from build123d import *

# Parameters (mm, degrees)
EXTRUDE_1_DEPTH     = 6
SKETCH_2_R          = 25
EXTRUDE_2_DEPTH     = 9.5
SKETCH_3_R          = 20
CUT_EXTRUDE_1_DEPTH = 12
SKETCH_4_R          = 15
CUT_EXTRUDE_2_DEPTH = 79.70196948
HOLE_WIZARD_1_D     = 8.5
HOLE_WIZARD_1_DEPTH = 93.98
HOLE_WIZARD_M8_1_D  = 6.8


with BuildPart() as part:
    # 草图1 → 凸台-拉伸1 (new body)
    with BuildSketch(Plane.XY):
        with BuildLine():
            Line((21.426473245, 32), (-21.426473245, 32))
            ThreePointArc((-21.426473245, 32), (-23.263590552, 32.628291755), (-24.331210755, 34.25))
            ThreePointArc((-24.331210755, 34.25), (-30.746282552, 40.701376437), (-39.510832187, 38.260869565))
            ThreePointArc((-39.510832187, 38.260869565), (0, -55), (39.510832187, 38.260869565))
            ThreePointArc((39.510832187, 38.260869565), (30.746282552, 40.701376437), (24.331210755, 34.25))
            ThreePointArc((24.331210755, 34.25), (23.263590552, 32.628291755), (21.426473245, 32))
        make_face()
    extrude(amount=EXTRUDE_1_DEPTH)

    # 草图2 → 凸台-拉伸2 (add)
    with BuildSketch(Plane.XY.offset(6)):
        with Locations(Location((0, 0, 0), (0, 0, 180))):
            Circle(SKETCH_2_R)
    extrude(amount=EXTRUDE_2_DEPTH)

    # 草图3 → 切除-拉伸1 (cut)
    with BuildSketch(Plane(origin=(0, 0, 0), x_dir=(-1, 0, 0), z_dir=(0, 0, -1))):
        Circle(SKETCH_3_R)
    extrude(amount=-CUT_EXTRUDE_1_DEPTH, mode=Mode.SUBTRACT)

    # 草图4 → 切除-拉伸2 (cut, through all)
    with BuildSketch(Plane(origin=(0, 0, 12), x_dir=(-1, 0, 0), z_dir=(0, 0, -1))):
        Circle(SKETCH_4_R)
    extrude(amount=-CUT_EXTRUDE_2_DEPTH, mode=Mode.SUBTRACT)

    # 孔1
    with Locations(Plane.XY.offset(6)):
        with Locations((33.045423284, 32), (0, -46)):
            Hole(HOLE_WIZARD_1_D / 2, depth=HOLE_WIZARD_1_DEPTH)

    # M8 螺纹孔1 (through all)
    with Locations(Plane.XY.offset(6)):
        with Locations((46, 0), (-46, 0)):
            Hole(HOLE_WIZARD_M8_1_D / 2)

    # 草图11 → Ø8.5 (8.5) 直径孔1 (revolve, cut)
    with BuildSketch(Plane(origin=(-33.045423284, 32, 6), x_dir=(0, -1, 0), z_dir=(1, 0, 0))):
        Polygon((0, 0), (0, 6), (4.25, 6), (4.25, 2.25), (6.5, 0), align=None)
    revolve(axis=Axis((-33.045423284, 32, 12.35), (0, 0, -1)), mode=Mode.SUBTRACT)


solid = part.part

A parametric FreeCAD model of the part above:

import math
import FreeCAD as App
import Part
import Sketcher
Q = App.Units.Quantity


def add_polygon(sketch, points):
    """Adds a closed chain of lines whose ends are joined by coincident constraints."""
    first, n = sketch.GeometryCount, len(points)
    for a, b in zip(points, points[1:] + points[:1]):
        sketch.addGeometry(Part.LineSegment(App.Vector(*a, 0), App.Vector(*b, 0)), False)
    for i in range(n):
        sketch.addConstraint(Sketcher.Constraint("Coincident", first + i, 2, first + (i + 1) % n, 1))

doc = App.newDocument("Part")
body = doc.addObject("PartDesign::Body", "Body")

sketch1 = body.newObject("Sketcher::SketchObject", "Sketch")
sketch1.AttachmentSupport = (doc.getObject("XY_Plane"), [""])
sketch1.MapMode = "FlatFace"
sketch1.addGeometry([
    Part.LineSegment(App.Vector(21.4, 32, 0), App.Vector(-21.4, 32, 0)),
    Part.ArcOfCircle(Part.Circle(App.Vector(-21.4, 35, 0), App.Vector(0, 0, 1), 3), math.radians(-166), math.radians(-90)),
    Part.ArcOfCircle(Part.Circle(App.Vector(-33, 32, 0), App.Vector(0, 0, 1), 9), math.radians(14), math.radians(136)),
    Part.ArcOfCircle(Part.Circle(App.Vector(0, 0, 0), App.Vector(0, 0, 1), 55), math.radians(136), math.radians(404)),
    Part.ArcOfCircle(Part.Circle(App.Vector(33, 32, 0), App.Vector(0, 0, 1), 9), math.radians(44), math.radians(166)),
    Part.ArcOfCircle(Part.Circle(App.Vector(21.4, 35, 0), App.Vector(0, 0, 1), 3), math.radians(-90), math.radians(-14)),
], False)
sketch1.addConstraint([
    Sketcher.Constraint("Tangent", 0, 2, 1, 2),
    Sketcher.Constraint("Tangent", 1, 1, 2, 1),
    Sketcher.Constraint("Tangent", 2, 2, 3, 1),
    Sketcher.Constraint("Tangent", 3, 2, 4, 1),
    Sketcher.Constraint("Tangent", 4, 2, 5, 2),
    Sketcher.Constraint("Tangent", 5, 1, 0, 1),
    Sketcher.Constraint("Horizontal", 0),
    Sketcher.Constraint("Coincident", 3, 3, -1, 1),
    Sketcher.Constraint("Equal", 2, 4),
    Sketcher.Constraint("Equal", 1, 5),
    Sketcher.Constraint("Horizontal", 2, 3, 4, 3),
    Sketcher.Constraint("Horizontal", 4, 3, 0, 2),
    Sketcher.Constraint("Radius", 1, 3.0),
    Sketcher.Constraint("Radius", 2, 9.0),
    Sketcher.Constraint("Radius", 3, 55.0),
    Sketcher.Constraint("DistanceY", -1, 1, 1, 3, 35.0),
])
pad1 = body.newObject("PartDesign::Pad", "Pad")
pad1.Profile = sketch1
pad1.Length = 6

sketch2 = body.newObject("Sketcher::SketchObject", "Sketch001")
sketch2.AttachmentSupport = (doc.getObject("XY_Plane"), [""])
sketch2.MapMode = "FlatFace"
sketch2.AttachmentOffset = App.Placement(App.Vector(0, 0, 6), App.Rotation())
sketch2.addGeometry(Part.Circle(App.Vector(0, 0, 0), App.Vector(0, 0, 1), 25), False)
sketch2.addConstraint([
    Sketcher.Constraint("Coincident", 0, 3, -1, 1),
    Sketcher.Constraint("Diameter", 0, 50.0),
])
pad2 = body.newObject("PartDesign::Pad", "Pad001")
pad2.Profile = sketch2
pad2.Length = 9.5

sketch3 = body.newObject("Sketcher::SketchObject", "Sketch002")
sketch3.AttachmentSupport = (doc.getObject("XY_Plane"), [""])
sketch3.MapMode = "FlatFace"
sketch3.addGeometry(Part.Circle(App.Vector(0, 0, 0), App.Vector(0, 0, 1), 20), False)
sketch3.addConstraint([
    Sketcher.Constraint("Coincident", 0, 3, -1, 1),
    Sketcher.Constraint("Diameter", 0, 40.0),
])
pocket1 = body.newObject("PartDesign::Pocket", "Pocket")
pocket1.Profile = sketch3
pocket1.Length = 12
pocket1.Reversed = True

sketch4 = body.newObject("Sketcher::SketchObject", "Sketch003")
sketch4.AttachmentSupport = (doc.getObject("XY_Plane"), [""])
sketch4.MapMode = "FlatFace"
sketch4.AttachmentOffset = App.Placement(App.Vector(0, 0, 12), App.Rotation())
sketch4.addGeometry(Part.Circle(App.Vector(0, 0, 0), App.Vector(0, 0, 1), 15), False)
sketch4.addConstraint([
    Sketcher.Constraint("Coincident", 0, 3, -1, 1),
    Sketcher.Constraint("Diameter", 0, 30.0),
])
pocket2 = body.newObject("PartDesign::Pocket", "Pocket001")
pocket2.Profile = sketch4
pocket2.Type = "ThroughAll"
pocket2.Reversed = True

sketch5 = body.newObject("Sketcher::SketchObject", "Sketch004")
sketch5.AttachmentSupport = (doc.getObject("XY_Plane"), [""])
sketch5.MapMode = "FlatFace"
sketch5.AttachmentOffset = App.Placement(App.Vector(0, 0, 6), App.Rotation())
sketch5.addGeometry([
    Part.Circle(App.Vector(33, 32, 0), App.Vector(0, 0, 1), 4.2),
    Part.Circle(App.Vector(0, -46, 0), App.Vector(0, 0, 1), 4.2),
], False)
sketch5.addConstraint([
    Sketcher.Constraint("Equal", 0, 1),
    Sketcher.Constraint("PointOnObject", 1, 3, -2),
    Sketcher.Constraint("Diameter", 0, 8.5),
    Sketcher.Constraint("DistanceY", -1, 1, 0, 3, 32.0),
    Sketcher.Constraint("DistanceY", 1, 3, -1, 1, 46.0),
    Sketcher.Constraint("DistanceX", -1, 1, 0, 3, 33.045423),
])
doc.recompute()
hole = body.newObject("PartDesign::Hole", "Hole")
hole.Profile = sketch5
hole.ThreadType = "None"
hole.Diameter = 8.5
hole.DepthType = "Dimension"
hole.Depth = 93.98
hole.DrillPoint = "Flat"

sketch6 = body.newObject("Sketcher::SketchObject", "Sketch005")
sketch6.AttachmentSupport = (doc.getObject("XY_Plane"), [""])
sketch6.MapMode = "FlatFace"
sketch6.AttachmentOffset = App.Placement(App.Vector(0, 0, 6), App.Rotation())
sketch6.addGeometry([
    Part.Circle(App.Vector(46, 0, 0), App.Vector(0, 0, 1), 3.4),
    Part.Circle(App.Vector(-46, 0, 0), App.Vector(0, 0, 1), 3.4),
], False)
sketch6.addConstraint([
    Sketcher.Constraint("Equal", 0, 1),
    Sketcher.Constraint("Symmetric", 0, 3, 1, 3, -1, 1),
    Sketcher.Constraint("PointOnObject", 0, 3, -1),
    Sketcher.Constraint("Diameter", 0, 6.8),
    Sketcher.Constraint("DistanceX", -1, 1, 0, 3, 46.0),
])
doc.recompute()
hole2 = body.newObject("PartDesign::Hole", "Hole001")
hole2.Profile = sketch6
hole2.ThreadType = "None"
hole2.Diameter = 6.8
hole2.DepthType = "ThroughAll"

sketch7 = body.newObject("Sketcher::SketchObject", "Sketch006")
sketch7.AttachmentSupport = (doc.getObject("YZ_Plane"), [""])
sketch7.MapMode = "FlatFace"
sketch7.AttachmentOffset = App.Placement(App.Vector(0, 0, -33.045423), App.Rotation())
add_polygon(sketch7, [(32, 0), (32, 6), (25.5, 6), (27.8, 3.8), (27.8, 0)])
sketch7.addGeometry(Part.LineSegment(App.Vector(32, 6, 0), App.Vector(32, 0, 0)), True)
sketch7.addConstraint([
    Sketcher.Constraint("Vertical", 0),
    Sketcher.Constraint("Horizontal", 1),
    Sketcher.Constraint("Vertical", 3),
    Sketcher.Constraint("Horizontal", 4),
    Sketcher.Constraint("Vertical", 5),
    Sketcher.Constraint("Coincident", 5, 1, 0, 2),
    Sketcher.Constraint("PointOnObject", 3, 2, -1),
    Sketcher.Constraint("PointOnObject", 5, 2, -1),
    Sketcher.Constraint("DistanceY", 0, 1, 0, 2, 6.0),
    Sketcher.Constraint("Angle", 2, Q("-45 deg")),
    Sketcher.Constraint("DistanceX", 1, 2, 1, 1, 6.5),
    Sketcher.Constraint("DistanceX", -1, 1, 0, 2, 32.0),
    Sketcher.Constraint("DistanceX", 4, 1, 4, 2, 4.25),
])
groove = body.newObject("PartDesign::Groove", "Groove")
groove.Profile = sketch7
groove.ReferenceAxis = (sketch7, ["Axis0"])
groove.Angle = 360

doc.recompute()
